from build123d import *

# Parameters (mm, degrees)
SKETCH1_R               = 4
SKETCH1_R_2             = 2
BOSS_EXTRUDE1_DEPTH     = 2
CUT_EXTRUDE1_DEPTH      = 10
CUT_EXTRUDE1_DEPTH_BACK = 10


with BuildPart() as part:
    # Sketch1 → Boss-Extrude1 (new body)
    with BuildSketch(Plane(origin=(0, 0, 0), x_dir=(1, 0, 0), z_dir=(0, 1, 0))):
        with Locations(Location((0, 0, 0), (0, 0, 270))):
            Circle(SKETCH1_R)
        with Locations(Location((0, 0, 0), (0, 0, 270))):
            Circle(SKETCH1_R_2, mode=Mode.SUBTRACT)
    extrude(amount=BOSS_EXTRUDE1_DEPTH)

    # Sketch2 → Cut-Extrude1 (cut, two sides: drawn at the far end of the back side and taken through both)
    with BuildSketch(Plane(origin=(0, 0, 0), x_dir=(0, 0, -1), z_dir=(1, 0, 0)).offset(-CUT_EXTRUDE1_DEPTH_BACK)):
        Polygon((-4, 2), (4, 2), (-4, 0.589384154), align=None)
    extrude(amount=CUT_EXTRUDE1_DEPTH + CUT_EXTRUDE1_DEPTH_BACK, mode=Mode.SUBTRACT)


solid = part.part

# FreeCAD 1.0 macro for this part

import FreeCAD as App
import Part
import Sketcher
from FreeCAD import Vector
Q = App.Units.Quantity

doc = App.newDocument("Part")
body = doc.addObject("PartDesign::Body", "Body")

sketch1 = body.newObject("Sketcher::SketchObject", "Sketch")
sketch1.AttachmentSupport = (doc.getObject("XZ_Plane"), [""])
sketch1.MapMode = "FlatFace"
sketch1.addGeometry(Part.Circle(Vector(0, 0, 0), Vector(0, 0, 1), 4), False)
sketch1.addGeometry(Part.Circle(Vector(0, 0, 0), Vector(0, 0, 1), 2), False)
sketch1.addConstraint(Sketcher.Constraint("Coincident", 0, 3, -1, 1))
sketch1.addConstraint(Sketcher.Constraint("Coincident", 1, 3, -1, 1))
sketch1.addConstraint(Sketcher.Constraint("Diameter", 0, Q("8 mm")))
sketch1.addConstraint(Sketcher.Constraint("Diameter", 1, Q("4 mm")))
pad1 = body.newObject("PartDesign::Pad", "Pad")
pad1.Profile = sketch1
pad1.Length = 2
pad1.Reversed = True

sketch2 = body.newObject("Sketcher::SketchObject", "Sketch001")
sketch2.AttachmentSupport = (doc.getObject("YZ_Plane"), [""])
sketch2.MapMode = "FlatFace"
sketch2.addGeometry(Part.LineSegment(Vector(2, -4, 0), Vector(2, 4, 0)), False)
sketch2.addGeometry(Part.LineSegment(Vector(2, 4, 0), Vector(0.589384, 4, 0)), False)
sketch2.addGeometry(Part.LineSegment(Vector(0.589384, 4, 0), Vector(2, -4, 0)), False)
sketch2.addConstraint(Sketcher.Constraint("Coincident", 0, 2, 1, 1))
sketch2.addConstraint(Sketcher.Constraint("Coincident", 1, 2, 2, 1))
sketch2.addConstraint(Sketcher.Constraint("Coincident", 2, 2, 0, 1))
sketch2.addConstraint(Sketcher.Constraint("Vertical", 0))
sketch2.addConstraint(Sketcher.Constraint("Horizontal", 1))
sketch2.addConstraint(Sketcher.Constraint("DistanceY", 0, 1, 0, 2, Q("8 mm")))
sketch2.addConstraint(Sketcher.Constraint("Angle", 2, Q("-80 deg")))
sketch2.addConstraint(Sketcher.Constraint("DistanceX", -1, 1, 0, 2, Q("2 mm")))
sketch2.addConstraint(Sketcher.Constraint("DistanceY", -1, 1, 0, 2, Q("4 mm")))
pocket1 = body.newObject("PartDesign::Pocket", "Pocket")
pocket1.Profile = sketch2
pocket1.Type = "ThroughAll"
pocket1.Midplane = True

doc.recompute()
